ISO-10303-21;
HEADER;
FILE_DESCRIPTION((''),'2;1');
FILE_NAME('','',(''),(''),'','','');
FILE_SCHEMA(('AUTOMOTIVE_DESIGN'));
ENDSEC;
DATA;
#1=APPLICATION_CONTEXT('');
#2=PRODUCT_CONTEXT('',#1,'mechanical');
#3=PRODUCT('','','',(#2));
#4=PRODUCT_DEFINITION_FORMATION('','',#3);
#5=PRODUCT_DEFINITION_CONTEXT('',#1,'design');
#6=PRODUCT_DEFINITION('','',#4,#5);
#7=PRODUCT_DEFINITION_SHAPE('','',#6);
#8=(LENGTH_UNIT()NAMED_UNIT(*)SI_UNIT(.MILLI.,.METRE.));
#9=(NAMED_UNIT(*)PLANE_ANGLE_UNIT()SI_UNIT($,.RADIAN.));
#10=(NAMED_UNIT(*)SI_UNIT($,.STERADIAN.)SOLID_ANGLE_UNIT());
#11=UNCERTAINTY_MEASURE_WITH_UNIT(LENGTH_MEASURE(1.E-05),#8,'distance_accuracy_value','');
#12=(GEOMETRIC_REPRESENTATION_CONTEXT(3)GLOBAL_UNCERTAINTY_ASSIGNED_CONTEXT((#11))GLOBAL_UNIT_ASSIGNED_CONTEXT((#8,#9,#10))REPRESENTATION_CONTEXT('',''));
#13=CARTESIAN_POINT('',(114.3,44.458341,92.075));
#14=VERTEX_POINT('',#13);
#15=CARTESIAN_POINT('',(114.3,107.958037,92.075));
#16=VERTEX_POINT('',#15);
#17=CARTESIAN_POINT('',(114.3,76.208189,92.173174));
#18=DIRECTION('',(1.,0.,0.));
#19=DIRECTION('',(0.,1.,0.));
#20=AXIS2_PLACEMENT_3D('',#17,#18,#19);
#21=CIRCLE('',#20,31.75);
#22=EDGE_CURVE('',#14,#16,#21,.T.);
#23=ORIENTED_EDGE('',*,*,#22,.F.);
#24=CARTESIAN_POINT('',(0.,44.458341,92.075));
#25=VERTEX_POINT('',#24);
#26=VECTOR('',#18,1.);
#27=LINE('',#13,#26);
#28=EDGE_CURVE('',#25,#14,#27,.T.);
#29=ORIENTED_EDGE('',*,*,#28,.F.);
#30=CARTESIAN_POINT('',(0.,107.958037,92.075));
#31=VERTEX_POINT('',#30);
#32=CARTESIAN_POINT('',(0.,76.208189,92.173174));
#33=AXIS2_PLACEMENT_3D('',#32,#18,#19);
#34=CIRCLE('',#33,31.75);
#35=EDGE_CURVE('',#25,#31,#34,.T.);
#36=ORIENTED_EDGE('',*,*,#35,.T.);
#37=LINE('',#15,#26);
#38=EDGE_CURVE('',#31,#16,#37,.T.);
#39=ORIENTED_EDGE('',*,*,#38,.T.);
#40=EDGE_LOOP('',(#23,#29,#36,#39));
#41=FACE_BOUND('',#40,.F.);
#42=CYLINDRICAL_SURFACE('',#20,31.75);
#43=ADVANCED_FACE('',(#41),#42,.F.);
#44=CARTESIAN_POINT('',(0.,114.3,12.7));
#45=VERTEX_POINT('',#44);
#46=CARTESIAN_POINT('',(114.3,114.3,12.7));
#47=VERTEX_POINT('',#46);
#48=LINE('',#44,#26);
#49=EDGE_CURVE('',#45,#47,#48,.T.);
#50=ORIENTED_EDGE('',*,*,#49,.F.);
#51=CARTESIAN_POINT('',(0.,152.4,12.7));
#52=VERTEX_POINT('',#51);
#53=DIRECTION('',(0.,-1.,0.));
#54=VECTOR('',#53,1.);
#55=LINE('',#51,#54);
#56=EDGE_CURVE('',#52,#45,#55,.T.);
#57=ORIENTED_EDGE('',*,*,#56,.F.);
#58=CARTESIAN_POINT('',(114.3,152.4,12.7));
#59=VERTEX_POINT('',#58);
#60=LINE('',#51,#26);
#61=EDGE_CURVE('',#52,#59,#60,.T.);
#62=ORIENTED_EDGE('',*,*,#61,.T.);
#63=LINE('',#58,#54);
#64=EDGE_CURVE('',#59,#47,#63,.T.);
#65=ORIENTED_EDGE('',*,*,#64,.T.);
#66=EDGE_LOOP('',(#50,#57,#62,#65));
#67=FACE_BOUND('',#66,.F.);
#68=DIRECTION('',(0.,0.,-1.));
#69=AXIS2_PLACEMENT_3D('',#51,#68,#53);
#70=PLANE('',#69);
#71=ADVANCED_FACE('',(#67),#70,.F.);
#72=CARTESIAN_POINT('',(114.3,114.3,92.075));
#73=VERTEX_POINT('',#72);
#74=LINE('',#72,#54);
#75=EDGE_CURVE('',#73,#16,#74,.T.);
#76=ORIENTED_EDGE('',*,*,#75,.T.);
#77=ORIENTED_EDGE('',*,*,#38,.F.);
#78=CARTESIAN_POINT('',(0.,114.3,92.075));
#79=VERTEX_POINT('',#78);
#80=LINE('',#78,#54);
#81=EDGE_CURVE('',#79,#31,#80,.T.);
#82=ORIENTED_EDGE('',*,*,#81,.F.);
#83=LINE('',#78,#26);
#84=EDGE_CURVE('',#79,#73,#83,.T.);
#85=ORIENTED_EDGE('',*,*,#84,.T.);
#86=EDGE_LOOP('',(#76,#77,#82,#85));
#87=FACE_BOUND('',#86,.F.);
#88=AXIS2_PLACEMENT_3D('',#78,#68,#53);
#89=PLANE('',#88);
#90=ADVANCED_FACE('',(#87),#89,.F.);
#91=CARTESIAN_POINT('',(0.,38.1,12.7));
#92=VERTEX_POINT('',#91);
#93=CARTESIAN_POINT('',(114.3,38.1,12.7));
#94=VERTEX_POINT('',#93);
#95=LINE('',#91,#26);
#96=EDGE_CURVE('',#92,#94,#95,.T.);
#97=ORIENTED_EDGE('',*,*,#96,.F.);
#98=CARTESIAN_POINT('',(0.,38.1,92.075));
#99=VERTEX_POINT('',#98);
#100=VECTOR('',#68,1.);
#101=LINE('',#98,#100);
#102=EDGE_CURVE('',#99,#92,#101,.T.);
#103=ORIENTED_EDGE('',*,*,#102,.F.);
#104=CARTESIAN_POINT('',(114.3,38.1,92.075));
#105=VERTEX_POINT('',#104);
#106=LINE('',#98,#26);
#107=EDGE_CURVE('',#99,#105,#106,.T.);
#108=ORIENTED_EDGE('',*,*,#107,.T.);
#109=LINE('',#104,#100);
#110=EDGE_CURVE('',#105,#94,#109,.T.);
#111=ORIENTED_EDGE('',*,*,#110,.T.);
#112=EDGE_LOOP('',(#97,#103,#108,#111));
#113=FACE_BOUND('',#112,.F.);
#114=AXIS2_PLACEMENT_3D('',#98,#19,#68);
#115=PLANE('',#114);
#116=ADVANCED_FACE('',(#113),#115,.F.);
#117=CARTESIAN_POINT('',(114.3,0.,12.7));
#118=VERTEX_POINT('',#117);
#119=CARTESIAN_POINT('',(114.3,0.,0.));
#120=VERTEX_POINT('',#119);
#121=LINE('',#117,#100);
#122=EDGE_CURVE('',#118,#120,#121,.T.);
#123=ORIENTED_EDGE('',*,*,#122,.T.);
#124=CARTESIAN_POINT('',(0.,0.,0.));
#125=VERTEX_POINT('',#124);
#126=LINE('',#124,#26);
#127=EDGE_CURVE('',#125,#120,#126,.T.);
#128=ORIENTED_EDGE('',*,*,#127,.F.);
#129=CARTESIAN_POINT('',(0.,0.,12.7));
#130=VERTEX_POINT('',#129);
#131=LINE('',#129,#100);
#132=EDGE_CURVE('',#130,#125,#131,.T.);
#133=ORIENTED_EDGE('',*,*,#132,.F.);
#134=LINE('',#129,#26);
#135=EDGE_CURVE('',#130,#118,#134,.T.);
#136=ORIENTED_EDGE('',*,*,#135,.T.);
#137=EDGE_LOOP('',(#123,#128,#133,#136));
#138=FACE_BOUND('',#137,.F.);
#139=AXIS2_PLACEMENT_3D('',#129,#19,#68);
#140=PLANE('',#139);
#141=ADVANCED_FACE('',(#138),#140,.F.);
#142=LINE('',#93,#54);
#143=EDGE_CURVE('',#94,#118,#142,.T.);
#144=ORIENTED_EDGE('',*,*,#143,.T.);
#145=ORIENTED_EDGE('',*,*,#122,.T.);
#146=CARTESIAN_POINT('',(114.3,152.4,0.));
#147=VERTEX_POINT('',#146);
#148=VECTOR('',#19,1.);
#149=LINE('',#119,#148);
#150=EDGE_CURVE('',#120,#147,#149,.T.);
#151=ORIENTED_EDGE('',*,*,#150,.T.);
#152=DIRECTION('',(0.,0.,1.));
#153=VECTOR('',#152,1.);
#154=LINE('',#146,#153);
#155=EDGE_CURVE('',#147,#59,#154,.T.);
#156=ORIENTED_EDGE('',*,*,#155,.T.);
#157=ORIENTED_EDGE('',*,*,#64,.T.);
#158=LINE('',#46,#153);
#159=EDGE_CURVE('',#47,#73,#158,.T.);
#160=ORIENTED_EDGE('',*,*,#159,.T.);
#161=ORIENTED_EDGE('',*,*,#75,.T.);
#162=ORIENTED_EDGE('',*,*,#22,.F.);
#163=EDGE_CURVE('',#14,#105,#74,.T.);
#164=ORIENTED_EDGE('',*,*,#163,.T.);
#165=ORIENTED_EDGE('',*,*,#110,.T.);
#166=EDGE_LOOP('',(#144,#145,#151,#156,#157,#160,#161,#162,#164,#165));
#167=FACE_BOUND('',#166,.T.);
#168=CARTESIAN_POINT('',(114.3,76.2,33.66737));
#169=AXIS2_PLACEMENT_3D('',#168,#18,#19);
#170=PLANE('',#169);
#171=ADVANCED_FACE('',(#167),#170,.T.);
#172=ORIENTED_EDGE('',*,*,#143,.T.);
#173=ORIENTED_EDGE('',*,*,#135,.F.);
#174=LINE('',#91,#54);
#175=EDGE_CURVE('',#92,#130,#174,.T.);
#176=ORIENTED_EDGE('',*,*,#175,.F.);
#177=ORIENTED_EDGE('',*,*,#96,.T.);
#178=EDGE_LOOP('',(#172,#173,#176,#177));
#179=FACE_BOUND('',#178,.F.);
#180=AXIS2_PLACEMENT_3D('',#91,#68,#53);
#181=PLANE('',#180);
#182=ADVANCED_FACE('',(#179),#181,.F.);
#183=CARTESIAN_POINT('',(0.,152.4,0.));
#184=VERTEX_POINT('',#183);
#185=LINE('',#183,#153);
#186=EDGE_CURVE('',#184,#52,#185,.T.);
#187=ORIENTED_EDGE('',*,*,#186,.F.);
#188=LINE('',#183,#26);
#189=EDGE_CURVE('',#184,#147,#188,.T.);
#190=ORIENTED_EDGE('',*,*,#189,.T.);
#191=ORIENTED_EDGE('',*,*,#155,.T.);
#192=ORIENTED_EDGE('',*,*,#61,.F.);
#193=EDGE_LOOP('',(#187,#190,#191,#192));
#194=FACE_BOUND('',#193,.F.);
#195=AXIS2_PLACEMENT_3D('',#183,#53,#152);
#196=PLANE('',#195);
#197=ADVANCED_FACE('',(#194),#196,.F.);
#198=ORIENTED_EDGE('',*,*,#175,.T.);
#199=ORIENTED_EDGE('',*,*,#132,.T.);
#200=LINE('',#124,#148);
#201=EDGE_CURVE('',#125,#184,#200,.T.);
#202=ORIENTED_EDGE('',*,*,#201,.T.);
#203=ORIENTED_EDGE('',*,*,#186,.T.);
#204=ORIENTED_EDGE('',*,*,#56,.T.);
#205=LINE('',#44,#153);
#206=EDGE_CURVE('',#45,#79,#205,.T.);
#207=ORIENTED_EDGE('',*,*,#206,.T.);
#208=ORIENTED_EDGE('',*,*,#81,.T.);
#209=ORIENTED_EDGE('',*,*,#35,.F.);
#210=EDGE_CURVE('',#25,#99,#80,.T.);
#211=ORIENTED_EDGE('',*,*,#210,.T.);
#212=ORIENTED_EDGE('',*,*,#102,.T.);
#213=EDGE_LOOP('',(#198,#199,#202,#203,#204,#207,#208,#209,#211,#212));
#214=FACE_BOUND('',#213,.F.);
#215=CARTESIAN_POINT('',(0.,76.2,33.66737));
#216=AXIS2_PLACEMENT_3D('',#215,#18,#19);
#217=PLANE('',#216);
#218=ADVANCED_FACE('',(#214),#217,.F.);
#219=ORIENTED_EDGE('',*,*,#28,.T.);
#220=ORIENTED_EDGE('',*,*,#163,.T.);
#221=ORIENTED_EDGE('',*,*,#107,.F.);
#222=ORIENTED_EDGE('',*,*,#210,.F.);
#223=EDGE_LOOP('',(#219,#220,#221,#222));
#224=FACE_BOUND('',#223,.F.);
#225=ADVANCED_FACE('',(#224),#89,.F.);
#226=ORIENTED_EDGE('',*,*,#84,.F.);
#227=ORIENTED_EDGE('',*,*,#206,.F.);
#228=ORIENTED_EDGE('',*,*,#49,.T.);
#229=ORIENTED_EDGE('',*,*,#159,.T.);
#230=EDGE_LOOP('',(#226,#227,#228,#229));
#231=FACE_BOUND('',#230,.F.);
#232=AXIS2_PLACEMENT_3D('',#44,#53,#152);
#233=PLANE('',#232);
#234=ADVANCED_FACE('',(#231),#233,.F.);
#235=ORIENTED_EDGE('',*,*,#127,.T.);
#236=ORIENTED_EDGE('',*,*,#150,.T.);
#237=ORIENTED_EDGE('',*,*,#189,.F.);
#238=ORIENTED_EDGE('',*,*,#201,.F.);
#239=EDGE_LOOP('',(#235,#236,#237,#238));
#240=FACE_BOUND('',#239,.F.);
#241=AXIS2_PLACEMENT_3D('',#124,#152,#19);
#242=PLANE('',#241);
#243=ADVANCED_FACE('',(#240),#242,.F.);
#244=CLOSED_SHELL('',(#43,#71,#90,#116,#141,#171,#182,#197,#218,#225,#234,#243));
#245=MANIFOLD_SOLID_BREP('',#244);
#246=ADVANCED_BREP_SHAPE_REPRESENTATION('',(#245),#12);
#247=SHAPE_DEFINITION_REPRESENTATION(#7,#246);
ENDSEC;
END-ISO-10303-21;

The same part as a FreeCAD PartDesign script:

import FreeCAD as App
import Part
import Sketcher
Q = App.Units.Quantity

doc = App.newDocument("Part")
body = doc.addObject("PartDesign::Body", "Body")

sketch1 = body.newObject("Sketcher::SketchObject", "Sketch")
sketch1.AttachmentSupport = (doc.getObject("YZ_Plane"), [""])
sketch1.MapMode = "FlatFace"
sketch1.addGeometry([
    Part.LineSegment(App.Vector(0, 13, 0), App.Vector(0, 0, 0)),
    Part.LineSegment(App.Vector(0, 0, 0), App.Vector(152, 0, 0)),
    Part.LineSegment(App.Vector(152, 0, 0), App.Vector(152, 13, 0)),
    Part.LineSegment(App.Vector(152, 13, 0), App.Vector(114, 13, 0)),
    Part.LineSegment(App.Vector(114, 13, 0), App.Vector(114, 92, 0)),
    Part.LineSegment(App.Vector(114, 92, 0), App.Vector(38, 92, 0)),
    Part.LineSegment(App.Vector(38, 92, 0), App.Vector(38, 13, 0)),
    Part.LineSegment(App.Vector(38, 13, 0), App.Vector(0, 13, 0)),
], False)
sketch1.addConstraint([
    Sketcher.Constraint("Coincident", 0, 2, 1, 1),
    Sketcher.Constraint("Coincident", 1, 2, 2, 1),
    Sketcher.Constraint("Coincident", 2, 2, 3, 1),
    Sketcher.Constraint("Coincident", 3, 2, 4, 1),
    Sketcher.Constraint("Coincident", 4, 2, 5, 1),
    Sketcher.Constraint("Coincident", 5, 2, 6, 1),
    Sketcher.Constraint("Coincident", 6, 2, 7, 1),
    Sketcher.Constraint("Coincident", 7, 2, 0, 1),
    Sketcher.Constraint("Vertical", 0),
    Sketcher.Constraint("Horizontal", 1),
    Sketcher.Constraint("Vertical", 2),
    Sketcher.Constraint("Horizontal", 3),
    Sketcher.Constraint("Vertical", 4),
    Sketcher.Constraint("Horizontal", 5),
    Sketcher.Constraint("Vertical", 6),
    Sketcher.Constraint("Horizontal", 7),
    Sketcher.Constraint("Coincident", 0, 2, -1, 1),
    Sketcher.Constraint("Horizontal", 3, 2, 6, 2),
    Sketcher.Constraint("Equal", 3, 7),
    Sketcher.Constraint("DistanceX", 1, 1, 1, 2, Q("6 in")),
    Sketcher.Constraint("DistanceX", 5, 2, 5, 1, Q("3 in")),
    Sketcher.Constraint("DistanceY", 0, 2, 0, 1, Q("0.5 in")),
    Sketcher.Constraint("DistanceY", 4, 1, 4, 2, Q("3.125 in")),
])
pad1 = body.newObject("PartDesign::Pad", "Pad")
pad1.Profile = sketch1
pad1.Length = Q("4.5 in")

sketch2 = body.newObject("Sketcher::SketchObject", "Sketch001")
sketch2.AttachmentSupport = (doc.getObject("YZ_Plane"), [""])
sketch2.MapMode = "FlatFace"
sketch2.AttachmentOffset = App.Placement(App.Vector(0, 0, 4.5 * 25.4), App.Rotation())
sketch2.addGeometry(Part.Circle(App.Vector(76, 92, 0), App.Vector(0, 0, 1), 32), False)
sketch2.addConstraint([
    Sketcher.Constraint("Diameter", 0, Q("2.5 in")),
    Sketcher.Constraint("DistanceX", -1, 1, 0, 3, 76.208189),
    Sketcher.Constraint("DistanceY", -1, 1, 0, 3, 92.173174),
])
pocket1 = body.newObject("PartDesign::Pocket", "Pocket")
pocket1.Profile = sketch2
pocket1.Type = "ThroughAll"

doc.recompute()
